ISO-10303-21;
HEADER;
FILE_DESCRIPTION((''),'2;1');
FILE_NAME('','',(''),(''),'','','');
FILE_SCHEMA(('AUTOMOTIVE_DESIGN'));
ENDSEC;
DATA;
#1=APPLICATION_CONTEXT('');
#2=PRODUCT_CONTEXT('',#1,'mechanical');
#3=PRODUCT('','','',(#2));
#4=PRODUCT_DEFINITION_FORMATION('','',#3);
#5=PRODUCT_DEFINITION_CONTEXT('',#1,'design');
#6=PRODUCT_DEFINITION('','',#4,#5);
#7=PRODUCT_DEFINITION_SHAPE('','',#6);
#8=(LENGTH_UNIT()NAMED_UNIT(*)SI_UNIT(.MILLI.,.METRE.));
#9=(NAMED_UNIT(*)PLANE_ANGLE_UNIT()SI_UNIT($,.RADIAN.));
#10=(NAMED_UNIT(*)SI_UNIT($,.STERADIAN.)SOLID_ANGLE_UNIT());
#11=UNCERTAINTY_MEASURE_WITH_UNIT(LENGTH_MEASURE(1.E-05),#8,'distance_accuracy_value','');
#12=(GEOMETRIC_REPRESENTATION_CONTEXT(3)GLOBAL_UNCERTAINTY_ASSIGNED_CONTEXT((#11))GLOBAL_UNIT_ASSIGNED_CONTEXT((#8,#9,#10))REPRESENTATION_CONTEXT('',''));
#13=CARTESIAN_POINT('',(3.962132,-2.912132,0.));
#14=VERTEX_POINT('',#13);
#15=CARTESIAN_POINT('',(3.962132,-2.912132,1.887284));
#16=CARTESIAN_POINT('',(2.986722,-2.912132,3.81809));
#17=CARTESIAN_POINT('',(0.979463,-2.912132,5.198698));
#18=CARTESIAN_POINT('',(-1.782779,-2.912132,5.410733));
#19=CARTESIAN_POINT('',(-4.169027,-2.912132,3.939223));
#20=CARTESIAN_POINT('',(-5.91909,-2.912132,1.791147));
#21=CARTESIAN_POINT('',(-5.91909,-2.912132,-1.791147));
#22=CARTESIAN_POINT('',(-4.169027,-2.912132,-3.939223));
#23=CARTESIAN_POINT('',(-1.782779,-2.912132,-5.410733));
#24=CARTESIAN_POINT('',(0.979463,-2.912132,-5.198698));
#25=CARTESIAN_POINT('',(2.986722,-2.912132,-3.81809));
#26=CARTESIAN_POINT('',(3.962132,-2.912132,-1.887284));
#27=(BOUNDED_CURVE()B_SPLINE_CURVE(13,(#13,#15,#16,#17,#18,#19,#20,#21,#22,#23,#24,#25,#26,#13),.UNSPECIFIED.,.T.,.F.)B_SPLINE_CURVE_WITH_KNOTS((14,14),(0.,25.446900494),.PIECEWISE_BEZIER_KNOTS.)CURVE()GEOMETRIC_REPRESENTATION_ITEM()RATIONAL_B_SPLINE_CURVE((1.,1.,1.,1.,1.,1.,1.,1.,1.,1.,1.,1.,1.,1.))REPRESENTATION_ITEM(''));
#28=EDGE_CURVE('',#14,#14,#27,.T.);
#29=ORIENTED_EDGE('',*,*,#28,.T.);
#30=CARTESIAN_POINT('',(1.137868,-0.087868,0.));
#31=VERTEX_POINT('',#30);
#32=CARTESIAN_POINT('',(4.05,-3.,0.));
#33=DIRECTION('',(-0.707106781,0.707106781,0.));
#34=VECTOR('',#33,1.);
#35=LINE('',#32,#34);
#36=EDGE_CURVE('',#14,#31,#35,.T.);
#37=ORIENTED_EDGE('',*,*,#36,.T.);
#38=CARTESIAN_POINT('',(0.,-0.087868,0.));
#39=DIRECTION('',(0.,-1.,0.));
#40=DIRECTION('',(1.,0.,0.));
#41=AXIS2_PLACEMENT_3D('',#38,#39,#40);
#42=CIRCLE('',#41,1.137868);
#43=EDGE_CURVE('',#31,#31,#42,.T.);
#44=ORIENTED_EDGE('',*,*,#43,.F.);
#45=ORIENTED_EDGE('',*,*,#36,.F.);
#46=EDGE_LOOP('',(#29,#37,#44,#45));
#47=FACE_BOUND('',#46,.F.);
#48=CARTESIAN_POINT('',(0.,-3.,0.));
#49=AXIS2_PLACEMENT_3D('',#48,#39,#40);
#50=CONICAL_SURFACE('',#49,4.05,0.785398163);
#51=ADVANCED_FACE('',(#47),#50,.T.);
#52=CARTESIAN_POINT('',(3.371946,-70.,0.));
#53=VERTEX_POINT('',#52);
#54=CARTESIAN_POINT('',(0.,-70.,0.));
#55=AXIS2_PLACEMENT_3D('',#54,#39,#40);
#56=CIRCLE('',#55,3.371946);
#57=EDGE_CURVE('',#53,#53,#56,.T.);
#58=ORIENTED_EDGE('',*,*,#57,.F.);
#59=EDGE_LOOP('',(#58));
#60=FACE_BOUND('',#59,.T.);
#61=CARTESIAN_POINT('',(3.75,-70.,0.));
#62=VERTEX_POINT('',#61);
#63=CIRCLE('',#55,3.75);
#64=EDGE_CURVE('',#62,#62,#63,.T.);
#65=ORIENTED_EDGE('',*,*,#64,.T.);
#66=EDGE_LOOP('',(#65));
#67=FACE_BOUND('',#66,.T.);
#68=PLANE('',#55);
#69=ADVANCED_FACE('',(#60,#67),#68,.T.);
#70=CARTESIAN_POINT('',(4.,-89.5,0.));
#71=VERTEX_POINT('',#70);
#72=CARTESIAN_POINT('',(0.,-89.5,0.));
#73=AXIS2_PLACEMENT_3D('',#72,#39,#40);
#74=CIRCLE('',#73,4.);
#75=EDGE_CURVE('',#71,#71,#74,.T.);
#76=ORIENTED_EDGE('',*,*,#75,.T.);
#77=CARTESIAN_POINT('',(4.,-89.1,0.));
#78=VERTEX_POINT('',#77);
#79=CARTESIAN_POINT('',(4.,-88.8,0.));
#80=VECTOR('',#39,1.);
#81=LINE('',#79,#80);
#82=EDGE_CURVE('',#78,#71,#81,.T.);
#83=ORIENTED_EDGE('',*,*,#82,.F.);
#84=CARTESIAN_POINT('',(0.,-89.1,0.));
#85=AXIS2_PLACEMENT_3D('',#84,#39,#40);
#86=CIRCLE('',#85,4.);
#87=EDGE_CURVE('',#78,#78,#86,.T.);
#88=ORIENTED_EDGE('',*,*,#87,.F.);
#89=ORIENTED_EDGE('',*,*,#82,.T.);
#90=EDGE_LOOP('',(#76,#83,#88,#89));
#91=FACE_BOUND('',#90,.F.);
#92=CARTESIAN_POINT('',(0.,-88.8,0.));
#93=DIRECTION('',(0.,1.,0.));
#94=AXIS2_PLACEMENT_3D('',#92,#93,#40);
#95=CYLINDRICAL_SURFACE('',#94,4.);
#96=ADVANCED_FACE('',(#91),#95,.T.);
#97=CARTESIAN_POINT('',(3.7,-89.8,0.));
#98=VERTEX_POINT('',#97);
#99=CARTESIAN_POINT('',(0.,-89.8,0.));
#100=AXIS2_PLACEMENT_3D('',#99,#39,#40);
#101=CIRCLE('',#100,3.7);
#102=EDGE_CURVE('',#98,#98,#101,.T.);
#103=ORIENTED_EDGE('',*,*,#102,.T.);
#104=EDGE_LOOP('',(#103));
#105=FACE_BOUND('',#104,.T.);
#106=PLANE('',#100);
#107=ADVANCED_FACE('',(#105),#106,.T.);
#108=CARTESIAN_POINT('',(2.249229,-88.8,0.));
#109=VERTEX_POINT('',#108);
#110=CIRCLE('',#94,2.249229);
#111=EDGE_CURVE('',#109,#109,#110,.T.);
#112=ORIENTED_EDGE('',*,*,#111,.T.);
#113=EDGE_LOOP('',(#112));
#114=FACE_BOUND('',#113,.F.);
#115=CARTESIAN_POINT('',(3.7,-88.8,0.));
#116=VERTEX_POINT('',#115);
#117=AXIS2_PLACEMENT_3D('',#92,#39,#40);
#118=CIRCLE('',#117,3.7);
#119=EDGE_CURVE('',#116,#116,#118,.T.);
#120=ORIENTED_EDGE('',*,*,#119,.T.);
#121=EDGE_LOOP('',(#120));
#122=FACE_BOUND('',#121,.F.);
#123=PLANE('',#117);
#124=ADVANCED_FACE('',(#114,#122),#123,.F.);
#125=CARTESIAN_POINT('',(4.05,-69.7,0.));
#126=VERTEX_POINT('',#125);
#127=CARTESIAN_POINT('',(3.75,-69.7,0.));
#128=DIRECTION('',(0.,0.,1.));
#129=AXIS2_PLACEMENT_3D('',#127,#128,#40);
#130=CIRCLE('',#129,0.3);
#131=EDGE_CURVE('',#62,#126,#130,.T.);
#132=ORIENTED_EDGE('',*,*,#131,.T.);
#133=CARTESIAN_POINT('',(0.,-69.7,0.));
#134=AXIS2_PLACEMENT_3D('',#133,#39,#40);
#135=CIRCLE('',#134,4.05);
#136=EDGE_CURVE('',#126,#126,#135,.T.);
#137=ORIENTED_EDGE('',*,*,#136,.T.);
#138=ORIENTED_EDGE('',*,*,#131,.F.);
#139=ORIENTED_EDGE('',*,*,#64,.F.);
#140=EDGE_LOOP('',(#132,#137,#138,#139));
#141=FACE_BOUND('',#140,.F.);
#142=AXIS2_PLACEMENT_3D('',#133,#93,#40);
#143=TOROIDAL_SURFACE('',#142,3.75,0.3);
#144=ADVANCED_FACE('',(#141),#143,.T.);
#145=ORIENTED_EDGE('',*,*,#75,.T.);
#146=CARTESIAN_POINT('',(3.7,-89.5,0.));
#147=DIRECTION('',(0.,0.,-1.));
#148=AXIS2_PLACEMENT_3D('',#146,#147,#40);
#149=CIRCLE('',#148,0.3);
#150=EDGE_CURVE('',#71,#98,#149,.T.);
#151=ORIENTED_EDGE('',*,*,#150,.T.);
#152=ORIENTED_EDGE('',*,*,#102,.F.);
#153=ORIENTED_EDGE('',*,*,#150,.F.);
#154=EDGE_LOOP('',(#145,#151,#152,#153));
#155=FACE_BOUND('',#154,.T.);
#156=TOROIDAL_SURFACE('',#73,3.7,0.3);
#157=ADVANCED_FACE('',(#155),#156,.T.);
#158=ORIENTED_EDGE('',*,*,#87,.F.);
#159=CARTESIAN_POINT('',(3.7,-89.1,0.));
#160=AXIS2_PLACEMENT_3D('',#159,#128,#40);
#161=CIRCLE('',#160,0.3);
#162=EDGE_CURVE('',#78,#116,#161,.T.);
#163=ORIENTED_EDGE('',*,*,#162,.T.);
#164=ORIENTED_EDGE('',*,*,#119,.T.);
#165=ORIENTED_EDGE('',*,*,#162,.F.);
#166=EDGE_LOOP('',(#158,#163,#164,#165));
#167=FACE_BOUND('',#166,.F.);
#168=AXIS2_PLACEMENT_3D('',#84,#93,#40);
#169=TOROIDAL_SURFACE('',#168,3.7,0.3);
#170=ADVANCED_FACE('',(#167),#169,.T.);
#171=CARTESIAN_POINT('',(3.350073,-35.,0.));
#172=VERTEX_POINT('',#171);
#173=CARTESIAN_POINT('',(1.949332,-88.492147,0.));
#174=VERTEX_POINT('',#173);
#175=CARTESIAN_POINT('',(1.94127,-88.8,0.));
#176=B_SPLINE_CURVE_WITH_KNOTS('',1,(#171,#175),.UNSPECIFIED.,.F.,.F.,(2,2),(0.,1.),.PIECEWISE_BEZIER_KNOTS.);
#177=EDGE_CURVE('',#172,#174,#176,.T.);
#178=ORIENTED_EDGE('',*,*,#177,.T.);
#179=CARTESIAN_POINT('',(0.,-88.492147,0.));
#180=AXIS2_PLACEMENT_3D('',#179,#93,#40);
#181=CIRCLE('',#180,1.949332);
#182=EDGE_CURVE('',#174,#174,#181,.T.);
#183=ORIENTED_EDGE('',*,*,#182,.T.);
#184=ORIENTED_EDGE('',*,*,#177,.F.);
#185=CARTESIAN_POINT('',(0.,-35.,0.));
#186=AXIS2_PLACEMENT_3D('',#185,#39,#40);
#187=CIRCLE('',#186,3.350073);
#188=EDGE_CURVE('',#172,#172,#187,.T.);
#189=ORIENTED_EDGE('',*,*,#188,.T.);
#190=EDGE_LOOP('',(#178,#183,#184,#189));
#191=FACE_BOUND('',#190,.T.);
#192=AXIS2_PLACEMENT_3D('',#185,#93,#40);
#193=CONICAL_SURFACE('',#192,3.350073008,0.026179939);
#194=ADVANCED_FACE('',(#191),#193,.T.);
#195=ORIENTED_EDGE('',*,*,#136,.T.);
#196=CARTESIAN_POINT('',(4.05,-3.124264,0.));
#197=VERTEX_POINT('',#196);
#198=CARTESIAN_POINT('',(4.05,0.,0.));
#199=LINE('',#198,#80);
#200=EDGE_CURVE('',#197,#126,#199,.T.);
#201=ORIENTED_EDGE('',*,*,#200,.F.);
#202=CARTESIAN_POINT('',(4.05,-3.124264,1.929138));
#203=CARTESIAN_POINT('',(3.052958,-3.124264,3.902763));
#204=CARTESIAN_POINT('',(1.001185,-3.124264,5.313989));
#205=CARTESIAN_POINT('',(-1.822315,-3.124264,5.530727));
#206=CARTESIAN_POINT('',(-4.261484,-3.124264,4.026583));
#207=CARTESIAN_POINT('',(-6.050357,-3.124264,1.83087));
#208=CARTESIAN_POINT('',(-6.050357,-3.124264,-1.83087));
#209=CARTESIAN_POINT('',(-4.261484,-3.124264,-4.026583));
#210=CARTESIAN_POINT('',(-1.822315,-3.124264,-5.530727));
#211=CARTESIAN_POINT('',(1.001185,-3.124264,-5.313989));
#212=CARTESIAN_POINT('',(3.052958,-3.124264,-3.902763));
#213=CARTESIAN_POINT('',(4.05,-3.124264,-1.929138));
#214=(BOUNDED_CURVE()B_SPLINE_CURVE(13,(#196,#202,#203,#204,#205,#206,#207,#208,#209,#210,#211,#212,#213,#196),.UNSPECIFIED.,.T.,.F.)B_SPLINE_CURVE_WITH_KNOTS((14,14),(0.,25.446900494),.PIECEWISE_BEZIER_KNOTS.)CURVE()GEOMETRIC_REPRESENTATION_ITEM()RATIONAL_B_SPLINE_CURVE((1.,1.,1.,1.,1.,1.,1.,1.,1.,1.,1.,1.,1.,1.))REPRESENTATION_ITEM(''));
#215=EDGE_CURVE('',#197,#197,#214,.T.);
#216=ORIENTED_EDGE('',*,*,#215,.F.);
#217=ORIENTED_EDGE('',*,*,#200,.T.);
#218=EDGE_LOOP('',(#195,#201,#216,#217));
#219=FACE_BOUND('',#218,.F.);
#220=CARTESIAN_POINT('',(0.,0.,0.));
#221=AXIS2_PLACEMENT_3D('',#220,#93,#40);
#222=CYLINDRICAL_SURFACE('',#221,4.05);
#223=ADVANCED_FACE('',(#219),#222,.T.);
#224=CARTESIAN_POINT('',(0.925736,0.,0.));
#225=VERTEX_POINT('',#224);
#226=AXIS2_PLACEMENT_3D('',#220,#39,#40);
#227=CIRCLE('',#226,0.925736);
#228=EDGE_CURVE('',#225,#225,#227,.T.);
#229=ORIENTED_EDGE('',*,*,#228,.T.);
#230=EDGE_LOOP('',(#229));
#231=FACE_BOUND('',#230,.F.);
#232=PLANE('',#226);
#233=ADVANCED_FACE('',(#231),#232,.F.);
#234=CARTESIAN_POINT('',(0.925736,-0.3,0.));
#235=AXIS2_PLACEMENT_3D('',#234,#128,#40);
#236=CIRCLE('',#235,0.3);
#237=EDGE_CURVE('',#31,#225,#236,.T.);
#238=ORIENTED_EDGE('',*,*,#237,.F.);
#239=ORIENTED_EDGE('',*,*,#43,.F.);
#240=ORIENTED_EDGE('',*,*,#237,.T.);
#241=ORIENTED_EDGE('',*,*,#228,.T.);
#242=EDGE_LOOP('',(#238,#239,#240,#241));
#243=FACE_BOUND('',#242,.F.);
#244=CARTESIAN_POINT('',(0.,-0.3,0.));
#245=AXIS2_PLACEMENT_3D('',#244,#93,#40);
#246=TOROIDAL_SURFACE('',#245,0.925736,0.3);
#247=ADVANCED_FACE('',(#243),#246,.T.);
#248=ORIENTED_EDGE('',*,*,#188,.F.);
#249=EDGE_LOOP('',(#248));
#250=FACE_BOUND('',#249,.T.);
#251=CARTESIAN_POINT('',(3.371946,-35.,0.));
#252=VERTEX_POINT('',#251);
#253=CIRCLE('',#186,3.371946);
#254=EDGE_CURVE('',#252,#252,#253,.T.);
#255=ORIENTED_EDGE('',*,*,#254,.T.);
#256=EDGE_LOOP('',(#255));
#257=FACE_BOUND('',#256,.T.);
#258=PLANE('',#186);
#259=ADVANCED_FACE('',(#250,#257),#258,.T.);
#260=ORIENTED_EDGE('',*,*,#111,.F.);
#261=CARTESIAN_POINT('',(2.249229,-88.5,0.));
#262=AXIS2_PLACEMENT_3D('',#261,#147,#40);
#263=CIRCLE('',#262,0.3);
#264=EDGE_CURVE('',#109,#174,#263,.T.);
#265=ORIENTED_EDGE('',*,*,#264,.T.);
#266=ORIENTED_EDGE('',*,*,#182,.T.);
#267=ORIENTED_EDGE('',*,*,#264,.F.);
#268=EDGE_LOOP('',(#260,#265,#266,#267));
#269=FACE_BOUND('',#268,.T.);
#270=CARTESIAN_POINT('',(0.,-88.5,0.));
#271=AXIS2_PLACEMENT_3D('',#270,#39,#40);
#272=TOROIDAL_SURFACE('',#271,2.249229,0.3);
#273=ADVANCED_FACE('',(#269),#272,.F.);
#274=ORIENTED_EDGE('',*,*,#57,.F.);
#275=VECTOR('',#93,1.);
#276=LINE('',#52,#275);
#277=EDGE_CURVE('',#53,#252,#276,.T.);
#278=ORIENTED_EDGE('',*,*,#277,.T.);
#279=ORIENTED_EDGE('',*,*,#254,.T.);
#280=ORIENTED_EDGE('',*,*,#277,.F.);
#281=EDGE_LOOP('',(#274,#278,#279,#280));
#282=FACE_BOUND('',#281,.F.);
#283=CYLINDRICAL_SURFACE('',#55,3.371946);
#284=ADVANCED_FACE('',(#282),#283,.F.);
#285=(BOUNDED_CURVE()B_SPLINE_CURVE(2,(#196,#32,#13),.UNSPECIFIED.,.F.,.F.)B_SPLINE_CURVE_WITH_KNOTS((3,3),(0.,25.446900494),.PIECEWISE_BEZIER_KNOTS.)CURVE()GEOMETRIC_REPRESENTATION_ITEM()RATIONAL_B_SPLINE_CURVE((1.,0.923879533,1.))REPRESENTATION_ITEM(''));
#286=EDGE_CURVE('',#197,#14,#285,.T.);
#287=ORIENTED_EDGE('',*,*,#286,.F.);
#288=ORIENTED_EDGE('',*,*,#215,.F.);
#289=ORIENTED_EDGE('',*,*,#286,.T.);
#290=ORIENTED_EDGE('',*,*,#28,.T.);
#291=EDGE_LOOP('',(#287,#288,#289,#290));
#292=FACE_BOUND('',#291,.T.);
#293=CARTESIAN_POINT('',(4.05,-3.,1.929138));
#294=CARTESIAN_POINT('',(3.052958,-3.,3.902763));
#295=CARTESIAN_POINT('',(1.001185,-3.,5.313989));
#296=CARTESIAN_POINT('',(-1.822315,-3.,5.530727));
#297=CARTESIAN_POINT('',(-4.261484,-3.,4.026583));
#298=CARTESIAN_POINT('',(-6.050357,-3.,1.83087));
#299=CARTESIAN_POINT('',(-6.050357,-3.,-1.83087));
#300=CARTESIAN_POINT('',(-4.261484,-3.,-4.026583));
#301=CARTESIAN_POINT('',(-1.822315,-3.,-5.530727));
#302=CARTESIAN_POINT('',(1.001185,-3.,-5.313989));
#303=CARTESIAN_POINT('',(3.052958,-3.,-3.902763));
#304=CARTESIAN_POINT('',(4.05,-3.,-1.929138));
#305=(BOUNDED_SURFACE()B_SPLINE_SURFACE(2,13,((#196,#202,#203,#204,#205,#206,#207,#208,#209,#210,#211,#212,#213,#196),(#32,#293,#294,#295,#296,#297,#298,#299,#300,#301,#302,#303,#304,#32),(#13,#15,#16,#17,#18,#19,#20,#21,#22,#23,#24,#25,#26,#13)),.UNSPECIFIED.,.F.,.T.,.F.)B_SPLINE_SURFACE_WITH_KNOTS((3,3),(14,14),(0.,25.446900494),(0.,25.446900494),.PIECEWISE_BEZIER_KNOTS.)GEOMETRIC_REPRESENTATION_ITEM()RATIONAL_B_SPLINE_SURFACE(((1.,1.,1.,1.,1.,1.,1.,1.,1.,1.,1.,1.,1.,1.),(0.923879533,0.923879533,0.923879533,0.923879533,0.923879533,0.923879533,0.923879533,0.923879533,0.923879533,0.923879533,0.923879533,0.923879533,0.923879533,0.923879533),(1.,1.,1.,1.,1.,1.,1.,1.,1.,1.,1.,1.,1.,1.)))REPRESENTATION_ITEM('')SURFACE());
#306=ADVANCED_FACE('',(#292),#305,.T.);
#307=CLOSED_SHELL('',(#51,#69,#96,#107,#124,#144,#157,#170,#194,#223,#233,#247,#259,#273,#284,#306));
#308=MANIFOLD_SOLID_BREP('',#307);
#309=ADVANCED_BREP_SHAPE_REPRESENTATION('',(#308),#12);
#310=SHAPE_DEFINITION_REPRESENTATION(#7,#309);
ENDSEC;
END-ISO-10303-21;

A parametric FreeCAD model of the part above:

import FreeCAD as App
import Part
import Sketcher


def edges_at(feature, points):
    """Names of the edges that pass closest to the given points."""
    edges = feature.Shape.Edges
    near = lambda p: min(range(len(edges)), key=lambda i: edges[i].distToShape(Part.Vertex(*p))[0])
    return sorted({f"Edge{near(p) + 1}" for p in points})

doc = App.newDocument("Part")
params = doc.addObject("Spreadsheet::Sheet", "Params")
for row, (alias, value) in enumerate([
    ("sketch1_diameter", "8.1 mm"),
    ("pad1_length", "70 mm"),
    ("chamfer_size", "3 mm"),
    ("pocket1_length", "35 mm"),
    ("pad2_length", "53.8 mm"),
    ("pad2_taper", "-1.5 deg"),
    ("sketch4_diameter", "8 mm"),
    ("pad3_length", "1 mm"),
    ("fillet_radius", "0.3 mm"),
], start=1):
    params.set(f"A{row}", alias)
    params.set(f"B{row}", "=" + value)
    params.setAlias(f"B{row}", alias)

body = doc.addObject("PartDesign::Body", "Body")

# Sketch on XZ plane
sketch1 = body.newObject("Sketcher::SketchObject", "Sketch")
sketch1.AttachmentSupport = (doc.getObject("XZ_Plane"), [""])
sketch1.MapMode = "FlatFace"
sketch1.addGeometry(Part.Circle(App.Vector(0, 0, 0), App.Vector(0, 0, 1), 4), False)
sketch1.addConstraint([
    Sketcher.Constraint("Coincident", 0, 3, -1, 1),
    Sketcher.Constraint("Diameter", 0, 8.1),
])
sketch1.setExpression("Constraints[1]", "Params.sketch1_diameter")
pad1 = body.newObject("PartDesign::Pad", "Pad")
pad1.Profile = sketch1
pad1.setExpression("Length", "Params.pad1_length")
doc.recompute()

chamfer = body.newObject("PartDesign::Chamfer", "Chamfer")
chamfer.Base = (pad1, edges_at(pad1, [(-4.05, 0, 0)]))
chamfer.setExpression("Size", "Params.chamfer_size")

# Sketch on XZ plane
sketch2 = body.newObject("Sketcher::SketchObject", "Sketch001")
sketch2.AttachmentSupport = (doc.getObject("XZ_Plane"), [""])
sketch2.MapMode = "FlatFace"
sketch2.AttachmentOffset = App.Placement(App.Vector(0, 0, 70), App.Rotation())
sketch2.addGeometry(Part.Circle(App.Vector(0, 0, 0), App.Vector(0, 0, 1), 3.4), False)
sketch2.addConstraint([
    Sketcher.Constraint("Coincident", 0, 3, -1, 1),
    Sketcher.Constraint("Diameter", 0, 6.743891),
])
pocket1 = body.newObject("PartDesign::Pocket", "Pocket")
pocket1.Profile = sketch2
pocket1.setExpression("Length", "Params.pocket1_length")

# Sketch on XZ plane
sketch3 = body.newObject("Sketcher::SketchObject", "Sketch002")
sketch3.AttachmentSupport = (doc.getObject("XZ_Plane"), [""])
sketch3.MapMode = "FlatFace"
sketch3.AttachmentOffset = App.Placement(App.Vector(0, 0, 35), App.Rotation())
sketch3.addGeometry(Part.Circle(App.Vector(0, 0, 0), App.Vector(0, 0, 1), 3.4), False)
sketch3.addConstraint([
    Sketcher.Constraint("Coincident", 0, 3, -1, 1),
    Sketcher.Constraint("Diameter", 0, 6.700146),
])
pad2 = body.newObject("PartDesign::Pad", "Pad001")
pad2.Profile = sketch3
pad2.setExpression("Length", "Params.pad2_length")
pad2.setExpression("TaperAngle", "Params.pad2_taper")

# Sketch on XZ plane
sketch4 = body.newObject("Sketcher::SketchObject", "Sketch003")
sketch4.AttachmentSupport = (doc.getObject("XZ_Plane"), [""])
sketch4.MapMode = "FlatFace"
sketch4.AttachmentOffset = App.Placement(App.Vector(0, 0, 88.8), App.Rotation())
sketch4.addGeometry(Part.Circle(App.Vector(0, 0, 0), App.Vector(0, 0, 1), 4), False)
sketch4.addConstraint([
    Sketcher.Constraint("Coincident", 0, 3, -1, 1),
    Sketcher.Constraint("Diameter", 0, 8.0),
])
sketch4.setExpression("Constraints[1]", "Params.sketch4_diameter")
pad3 = body.newObject("PartDesign::Pad", "Pad002")
pad3.Profile = sketch4
pad3.setExpression("Length", "Params.pad3_length")
doc.recompute()

fillet = body.newObject("PartDesign::Fillet", "Fillet")
fillet.Base = (pad3, edges_at(pad3, [
    (-4.05, -70, 0),
    (-4.05, -3, 0),
    (-1.05, 0, 0),
    (-1.941, -88.8, 0),
    (-4, -88.8, 0),
    (-4, -89.8, 0),
]))
fillet.setExpression("Radius", "Params.fillet_radius")

doc.recompute()
